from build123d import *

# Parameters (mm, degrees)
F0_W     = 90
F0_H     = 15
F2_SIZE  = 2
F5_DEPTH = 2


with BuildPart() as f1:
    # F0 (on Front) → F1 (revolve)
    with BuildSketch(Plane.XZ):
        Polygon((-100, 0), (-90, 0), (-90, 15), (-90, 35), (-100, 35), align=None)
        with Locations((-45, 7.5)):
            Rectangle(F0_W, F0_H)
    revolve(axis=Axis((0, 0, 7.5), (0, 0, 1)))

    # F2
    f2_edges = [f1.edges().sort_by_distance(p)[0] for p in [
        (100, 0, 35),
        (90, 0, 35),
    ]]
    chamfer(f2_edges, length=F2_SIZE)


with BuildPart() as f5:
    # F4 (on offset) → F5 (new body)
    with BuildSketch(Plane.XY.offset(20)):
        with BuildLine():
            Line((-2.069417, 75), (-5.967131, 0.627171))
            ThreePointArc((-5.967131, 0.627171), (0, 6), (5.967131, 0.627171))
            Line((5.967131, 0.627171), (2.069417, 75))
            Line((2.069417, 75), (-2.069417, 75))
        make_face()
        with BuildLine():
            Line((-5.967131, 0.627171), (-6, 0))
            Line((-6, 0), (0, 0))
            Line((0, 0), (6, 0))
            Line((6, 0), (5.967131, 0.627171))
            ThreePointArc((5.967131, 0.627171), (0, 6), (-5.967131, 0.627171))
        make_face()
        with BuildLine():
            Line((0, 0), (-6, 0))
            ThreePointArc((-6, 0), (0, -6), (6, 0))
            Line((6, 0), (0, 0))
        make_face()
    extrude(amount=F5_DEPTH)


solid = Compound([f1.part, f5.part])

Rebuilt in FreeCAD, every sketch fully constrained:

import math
import FreeCAD as App
import Part
import Sketcher
from FreeCAD import Vector
Q = App.Units.Quantity


def edges_at(feature, points):
    """Names of the edges that pass closest to the given points."""
    edges = feature.Shape.Edges
    near = lambda p: min(range(len(edges)), key=lambda i: edges[i].distToShape(Part.Vertex(*p))[0])
    return sorted({f"Edge{near(p) + 1}" for p in points})

doc = App.newDocument("Part")
params = doc.addObject("Spreadsheet::Sheet", "Params")
for row, (alias, value) in enumerate([
    ("sketch1_width", "100 mm"),
    ("sketch1_width2", "90 mm"),
    ("sketch1_height", "15 mm"),
    ("sketch1_height2", "20 mm"),
    ("revolution_angle", "360 deg"),
    ("chamfer_size", "2 mm"),
    ("sketch2_radius", "6 mm"),
    ("pad1_length", "2 mm"),
], start=1):
    params.set(f"A{row}", alias)
    params.set(f"B{row}", "=" + value)
    params.setAlias(f"B{row}", alias)

body = doc.addObject("PartDesign::Body", "Body")

# Sketch on XZ plane
sketch1 = body.newObject("Sketcher::SketchObject", "Sketch")
sketch1.AttachmentSupport = (doc.getObject("XZ_Plane"), [""])
sketch1.MapMode = "FlatFace"
sketch1.addGeometry(Part.LineSegment(Vector(-100, 0, 0), Vector(0, 0, 0)), False)
sketch1.addGeometry(Part.LineSegment(Vector(0, 0, 0), Vector(0, 15, 0)), False)
sketch1.addGeometry(Part.LineSegment(Vector(0, 15, 0), Vector(-90, 15, 0)), False)
sketch1.addGeometry(Part.LineSegment(Vector(-90, 15, 0), Vector(-90, 35, 0)), False)
sketch1.addGeometry(Part.LineSegment(Vector(-90, 35, 0), Vector(-100, 35, 0)), False)
sketch1.addGeometry(Part.LineSegment(Vector(-100, 35, 0), Vector(-100, 0, 0)), False)
sketch1.addConstraint(Sketcher.Constraint("Coincident", 0, 2, 1, 1))
sketch1.addConstraint(Sketcher.Constraint("Coincident", 1, 2, 2, 1))
sketch1.addConstraint(Sketcher.Constraint("Coincident", 2, 2, 3, 1))
sketch1.addConstraint(Sketcher.Constraint("Coincident", 3, 2, 4, 1))
sketch1.addConstraint(Sketcher.Constraint("Coincident", 4, 2, 5, 1))
sketch1.addConstraint(Sketcher.Constraint("Coincident", 5, 2, 0, 1))
sketch1.addConstraint(Sketcher.Constraint("Horizontal", 0))
sketch1.addConstraint(Sketcher.Constraint("Vertical", 1))
sketch1.addConstraint(Sketcher.Constraint("Horizontal", 2))
sketch1.addConstraint(Sketcher.Constraint("Vertical", 3))
sketch1.addConstraint(Sketcher.Constraint("Horizontal", 4))
sketch1.addConstraint(Sketcher.Constraint("Vertical", 5))
sketch1.addConstraint(Sketcher.Constraint("Coincident", 0, 2, -1, 1))
sketch1.addConstraint(Sketcher.Constraint("DistanceX", 0, 1, 0, 2, Q("100 mm")))
sketch1.addConstraint(Sketcher.Constraint("DistanceX", 2, 2, 2, 1, Q("90 mm")))
sketch1.addConstraint(Sketcher.Constraint("DistanceY", 1, 1, 1, 2, Q("15 mm")))
sketch1.addConstraint(Sketcher.Constraint("DistanceY", 3, 1, 3, 2, Q("20 mm")))
sketch1.setExpression("Constraints[13]", "Params.sketch1_width")
sketch1.setExpression("Constraints[14]", "Params.sketch1_width2")
sketch1.setExpression("Constraints[15]", "Params.sketch1_height")
sketch1.setExpression("Constraints[16]", "Params.sketch1_height2")
revolution = body.newObject("PartDesign::Revolution", "Revolution")
revolution.Profile = sketch1
revolution.ReferenceAxis = (sketch1, ["V_Axis"])
revolution.setExpression("Angle", "Params.revolution_angle")
doc.recompute()

chamfer = body.newObject("PartDesign::Chamfer", "Chamfer")
chamfer.Base = (revolution, edges_at(revolution, [(100, 0, 35), (90, 0, 35)]))
chamfer.setExpression("Size", "Params.chamfer_size")
body2 = doc.addObject("PartDesign::Body", "Body001")

# Sketch on XY plane
sketch2 = body2.newObject("Sketcher::SketchObject", "Sketch001")
sketch2.AttachmentSupport = (doc.getObject("XY_Plane001"), [""])
sketch2.MapMode = "FlatFace"
sketch2.AttachmentOffset = App.Placement(Vector(0, 0, 20), App.Rotation())
sketch2.addGeometry(Part.LineSegment(Vector(-2.069417, 75, 0), Vector(-5.967131, 0.627171, 0)), False)
sketch2.addGeometry(Part.LineSegment(Vector(-5.967131, 0.627171, 0), Vector(-6, 0, 0)), False)
sketch2.addGeometry(Part.ArcOfCircle(Part.Circle(Vector(0, 0, 0), Vector(0, 0, 1), 6), math.radians(180), math.radians(360)), False)
sketch2.addGeometry(Part.LineSegment(Vector(6, 0, 0), Vector(5.967131, 0.627171, 0)), False)
sketch2.addGeometry(Part.LineSegment(Vector(5.967131, 0.627171, 0), Vector(2.069417, 75, 0)), False)
sketch2.addGeometry(Part.LineSegment(Vector(2.069417, 75, 0), Vector(-2.069417, 75, 0)), False)
sketch2.addConstraint(Sketcher.Constraint("Coincident", 0, 2, 1, 1))
sketch2.addConstraint(Sketcher.Constraint("Coincident", 1, 2, 2, 1))
sketch2.addConstraint(Sketcher.Constraint("Coincident", 2, 2, 3, 1))
sketch2.addConstraint(Sketcher.Constraint("Coincident", 3, 2, 4, 1))
sketch2.addConstraint(Sketcher.Constraint("Coincident", 4, 2, 5, 1))
sketch2.addConstraint(Sketcher.Constraint("Coincident", 5, 2, 0, 1))
sketch2.addConstraint(Sketcher.Constraint("Horizontal", 5))
sketch2.addConstraint(Sketcher.Constraint("Coincident", 2, 3, -1, 1))
sketch2.addConstraint(Sketcher.Constraint("Symmetric", 0, 2, 3, 2, -2))
sketch2.addConstraint(Sketcher.Constraint("PointOnObject", 1, 2, -1))
sketch2.addConstraint(Sketcher.Constraint("PointOnObject", 2, 2, -1))
sketch2.addConstraint(Sketcher.Constraint("Parallel", 0, 1))
sketch2.addConstraint(Sketcher.Constraint("Parallel", 3, 4))
sketch2.addConstraint(Sketcher.Constraint("Radius", 2, Q("6 mm")))
sketch2.addConstraint(Sketcher.Constraint("Angle", 0, Q("-92.999999 deg")))
sketch2.addConstraint(Sketcher.Constraint("DistanceY", -1, 1, 4, 2, Q("75 mm")))
sketch2.addConstraint(Sketcher.Constraint("Distance", 1, Q("0.628032 mm")))
sketch2.setExpression("Constraints[13]", "Params.sketch2_radius")
pad1 = body2.newObject("PartDesign::Pad", "Pad")
pad1.Profile = sketch2
pad1.setExpression("Length", "Params.pad1_length")

doc.recompute()
